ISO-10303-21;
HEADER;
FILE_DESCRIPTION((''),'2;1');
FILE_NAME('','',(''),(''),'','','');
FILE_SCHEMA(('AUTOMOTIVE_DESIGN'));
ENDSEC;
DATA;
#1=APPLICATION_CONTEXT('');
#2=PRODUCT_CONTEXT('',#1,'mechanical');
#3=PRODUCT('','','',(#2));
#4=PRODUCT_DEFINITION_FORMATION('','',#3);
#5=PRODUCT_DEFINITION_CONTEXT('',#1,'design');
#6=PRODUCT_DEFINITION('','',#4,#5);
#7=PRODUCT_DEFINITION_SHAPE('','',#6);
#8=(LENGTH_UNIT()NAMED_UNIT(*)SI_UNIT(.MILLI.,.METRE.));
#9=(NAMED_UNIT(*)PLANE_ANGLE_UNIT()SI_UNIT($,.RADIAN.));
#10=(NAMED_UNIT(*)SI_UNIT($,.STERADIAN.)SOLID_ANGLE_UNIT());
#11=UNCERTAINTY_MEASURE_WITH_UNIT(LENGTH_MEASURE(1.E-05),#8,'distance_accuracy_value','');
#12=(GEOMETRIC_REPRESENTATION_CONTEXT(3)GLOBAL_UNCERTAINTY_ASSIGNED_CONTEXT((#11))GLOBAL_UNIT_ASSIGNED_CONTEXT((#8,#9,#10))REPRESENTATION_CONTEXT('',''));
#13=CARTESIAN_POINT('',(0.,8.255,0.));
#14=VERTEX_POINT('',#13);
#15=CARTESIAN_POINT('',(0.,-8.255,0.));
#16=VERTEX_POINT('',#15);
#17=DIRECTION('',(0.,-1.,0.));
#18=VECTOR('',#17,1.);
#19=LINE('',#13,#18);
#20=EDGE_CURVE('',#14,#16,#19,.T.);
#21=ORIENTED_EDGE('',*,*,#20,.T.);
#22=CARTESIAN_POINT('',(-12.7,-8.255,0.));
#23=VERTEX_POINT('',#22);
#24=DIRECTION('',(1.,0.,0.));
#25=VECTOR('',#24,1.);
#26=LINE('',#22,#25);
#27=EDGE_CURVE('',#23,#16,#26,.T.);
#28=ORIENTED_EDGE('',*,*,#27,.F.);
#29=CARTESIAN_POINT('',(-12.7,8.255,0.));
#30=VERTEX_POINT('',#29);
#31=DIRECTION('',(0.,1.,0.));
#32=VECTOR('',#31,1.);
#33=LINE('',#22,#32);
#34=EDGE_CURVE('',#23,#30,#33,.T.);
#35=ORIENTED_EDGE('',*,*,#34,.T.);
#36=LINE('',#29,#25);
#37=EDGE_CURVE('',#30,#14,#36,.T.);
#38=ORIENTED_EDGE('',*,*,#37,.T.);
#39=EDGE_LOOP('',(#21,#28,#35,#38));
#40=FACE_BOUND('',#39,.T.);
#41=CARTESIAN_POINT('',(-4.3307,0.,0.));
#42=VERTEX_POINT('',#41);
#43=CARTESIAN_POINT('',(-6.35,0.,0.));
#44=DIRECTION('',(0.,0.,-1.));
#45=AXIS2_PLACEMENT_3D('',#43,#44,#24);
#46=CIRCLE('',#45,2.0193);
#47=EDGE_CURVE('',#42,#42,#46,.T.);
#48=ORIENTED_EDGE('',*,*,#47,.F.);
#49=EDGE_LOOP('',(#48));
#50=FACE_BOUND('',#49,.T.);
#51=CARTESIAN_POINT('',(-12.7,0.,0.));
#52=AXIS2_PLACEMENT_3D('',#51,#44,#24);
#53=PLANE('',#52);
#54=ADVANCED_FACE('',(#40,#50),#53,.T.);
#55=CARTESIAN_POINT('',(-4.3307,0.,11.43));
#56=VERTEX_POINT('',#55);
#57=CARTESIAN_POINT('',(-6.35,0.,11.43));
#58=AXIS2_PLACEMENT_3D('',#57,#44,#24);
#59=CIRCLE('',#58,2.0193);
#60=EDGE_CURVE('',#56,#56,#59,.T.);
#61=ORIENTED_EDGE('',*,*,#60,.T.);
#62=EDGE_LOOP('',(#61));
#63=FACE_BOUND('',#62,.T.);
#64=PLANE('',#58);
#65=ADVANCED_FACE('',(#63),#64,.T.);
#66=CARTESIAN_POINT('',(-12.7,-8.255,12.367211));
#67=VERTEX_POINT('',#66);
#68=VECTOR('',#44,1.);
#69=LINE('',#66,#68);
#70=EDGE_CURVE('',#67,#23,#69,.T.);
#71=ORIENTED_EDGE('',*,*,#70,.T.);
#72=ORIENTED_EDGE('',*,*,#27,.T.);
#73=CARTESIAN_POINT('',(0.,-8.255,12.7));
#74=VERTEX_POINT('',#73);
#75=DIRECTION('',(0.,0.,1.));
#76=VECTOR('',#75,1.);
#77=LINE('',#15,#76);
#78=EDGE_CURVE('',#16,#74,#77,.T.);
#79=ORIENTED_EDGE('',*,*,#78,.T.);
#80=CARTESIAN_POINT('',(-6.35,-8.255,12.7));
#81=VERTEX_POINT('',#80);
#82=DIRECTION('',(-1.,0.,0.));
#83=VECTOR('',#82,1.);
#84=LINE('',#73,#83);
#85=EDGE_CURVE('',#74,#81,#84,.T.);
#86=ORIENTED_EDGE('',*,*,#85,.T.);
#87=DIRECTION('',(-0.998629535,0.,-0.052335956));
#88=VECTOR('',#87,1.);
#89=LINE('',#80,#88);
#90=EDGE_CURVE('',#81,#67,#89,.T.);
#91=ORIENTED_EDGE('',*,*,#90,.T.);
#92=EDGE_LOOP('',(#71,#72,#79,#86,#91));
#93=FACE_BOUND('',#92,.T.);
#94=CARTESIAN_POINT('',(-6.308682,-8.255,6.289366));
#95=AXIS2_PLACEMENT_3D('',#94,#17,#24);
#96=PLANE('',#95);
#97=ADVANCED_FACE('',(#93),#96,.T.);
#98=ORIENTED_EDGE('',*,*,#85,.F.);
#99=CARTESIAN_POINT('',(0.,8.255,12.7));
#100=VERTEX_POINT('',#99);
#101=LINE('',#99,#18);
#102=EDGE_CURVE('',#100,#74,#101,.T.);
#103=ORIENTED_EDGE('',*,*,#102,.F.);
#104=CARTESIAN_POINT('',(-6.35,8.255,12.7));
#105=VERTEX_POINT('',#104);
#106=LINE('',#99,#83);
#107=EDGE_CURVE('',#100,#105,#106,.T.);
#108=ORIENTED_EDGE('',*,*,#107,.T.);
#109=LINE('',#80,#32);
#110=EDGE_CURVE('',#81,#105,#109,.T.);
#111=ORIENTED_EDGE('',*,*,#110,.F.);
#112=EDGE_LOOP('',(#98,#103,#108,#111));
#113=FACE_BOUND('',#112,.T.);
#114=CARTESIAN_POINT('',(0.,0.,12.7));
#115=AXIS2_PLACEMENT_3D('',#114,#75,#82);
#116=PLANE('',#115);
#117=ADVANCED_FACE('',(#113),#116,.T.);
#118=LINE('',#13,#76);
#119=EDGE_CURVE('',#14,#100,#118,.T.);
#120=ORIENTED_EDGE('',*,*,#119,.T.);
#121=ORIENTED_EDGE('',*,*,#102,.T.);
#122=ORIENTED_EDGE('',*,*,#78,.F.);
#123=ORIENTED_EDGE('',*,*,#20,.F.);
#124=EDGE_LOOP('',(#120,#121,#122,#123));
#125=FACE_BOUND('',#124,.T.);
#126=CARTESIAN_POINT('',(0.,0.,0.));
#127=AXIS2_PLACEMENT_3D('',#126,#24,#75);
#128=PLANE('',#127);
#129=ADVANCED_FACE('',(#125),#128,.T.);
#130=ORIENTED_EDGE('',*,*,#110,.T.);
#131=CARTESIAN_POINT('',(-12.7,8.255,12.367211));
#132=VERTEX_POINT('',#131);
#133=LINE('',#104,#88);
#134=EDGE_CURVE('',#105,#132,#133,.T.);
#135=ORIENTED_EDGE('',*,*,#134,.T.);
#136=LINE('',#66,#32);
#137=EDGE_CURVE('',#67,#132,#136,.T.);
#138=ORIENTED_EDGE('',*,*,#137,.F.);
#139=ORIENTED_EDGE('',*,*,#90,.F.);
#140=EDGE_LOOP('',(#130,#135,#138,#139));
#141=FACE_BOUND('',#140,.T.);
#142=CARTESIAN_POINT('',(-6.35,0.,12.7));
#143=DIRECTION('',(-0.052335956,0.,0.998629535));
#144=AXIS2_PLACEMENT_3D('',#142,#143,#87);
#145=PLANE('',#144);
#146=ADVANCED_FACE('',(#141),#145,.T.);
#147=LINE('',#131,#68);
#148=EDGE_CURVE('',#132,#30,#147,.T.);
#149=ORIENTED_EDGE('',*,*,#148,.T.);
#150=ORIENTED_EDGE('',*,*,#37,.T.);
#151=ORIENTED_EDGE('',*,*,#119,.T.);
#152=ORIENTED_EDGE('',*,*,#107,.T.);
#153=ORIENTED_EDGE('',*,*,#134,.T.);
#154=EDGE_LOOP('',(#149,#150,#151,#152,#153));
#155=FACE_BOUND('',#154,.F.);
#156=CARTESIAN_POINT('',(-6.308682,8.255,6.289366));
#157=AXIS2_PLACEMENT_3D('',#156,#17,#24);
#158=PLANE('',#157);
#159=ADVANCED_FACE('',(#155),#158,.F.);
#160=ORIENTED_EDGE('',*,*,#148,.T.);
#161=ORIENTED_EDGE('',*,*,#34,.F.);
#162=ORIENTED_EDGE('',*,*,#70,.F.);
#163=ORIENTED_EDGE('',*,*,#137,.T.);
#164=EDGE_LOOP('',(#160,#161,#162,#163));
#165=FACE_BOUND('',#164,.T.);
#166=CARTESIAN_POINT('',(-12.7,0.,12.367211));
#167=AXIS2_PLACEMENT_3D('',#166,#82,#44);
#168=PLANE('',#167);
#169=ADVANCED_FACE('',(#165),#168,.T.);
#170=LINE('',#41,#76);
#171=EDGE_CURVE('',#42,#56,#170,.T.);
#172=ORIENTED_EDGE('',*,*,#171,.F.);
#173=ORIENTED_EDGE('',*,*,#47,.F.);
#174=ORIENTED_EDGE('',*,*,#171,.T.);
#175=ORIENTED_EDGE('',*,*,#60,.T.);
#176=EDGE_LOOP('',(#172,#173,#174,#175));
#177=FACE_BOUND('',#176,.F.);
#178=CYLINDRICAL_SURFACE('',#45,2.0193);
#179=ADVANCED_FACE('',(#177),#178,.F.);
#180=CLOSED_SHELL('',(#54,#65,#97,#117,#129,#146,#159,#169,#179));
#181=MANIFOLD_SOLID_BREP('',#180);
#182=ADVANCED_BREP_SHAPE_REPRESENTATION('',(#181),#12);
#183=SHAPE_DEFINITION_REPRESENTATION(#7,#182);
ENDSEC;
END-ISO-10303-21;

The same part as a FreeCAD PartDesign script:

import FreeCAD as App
import Part
import Sketcher
from FreeCAD import Vector
Q = App.Units.Quantity

doc = App.newDocument("Part")
body = doc.addObject("PartDesign::Body", "Body")

sketch1 = body.newObject("Sketcher::SketchObject", "Sketch")
sketch1.AttachmentSupport = (doc.getObject("XZ_Plane"), [""])
sketch1.MapMode = "FlatFace"
sketch1.addGeometry(Part.LineSegment(Vector(-13, 0, 0), Vector(0, 0, 0)), False)
sketch1.addGeometry(Part.LineSegment(Vector(0, 0, 0), Vector(0, 13, 0)), False)
sketch1.addGeometry(Part.LineSegment(Vector(0, 13, 0), Vector(-6, 13, 0)), False)
sketch1.addGeometry(Part.LineSegment(Vector(-6, 13, 0), Vector(-13, 12, 0)), False)
sketch1.addGeometry(Part.LineSegment(Vector(-13, 12, 0), Vector(-13, 0, 0)), False)
sketch1.addConstraint(Sketcher.Constraint("Coincident", 0, 2, 1, 1))
sketch1.addConstraint(Sketcher.Constraint("Coincident", 1, 2, 2, 1))
sketch1.addConstraint(Sketcher.Constraint("Coincident", 2, 2, 3, 1))
sketch1.addConstraint(Sketcher.Constraint("Coincident", 3, 2, 4, 1))
sketch1.addConstraint(Sketcher.Constraint("Coincident", 4, 2, 0, 1))
sketch1.addConstraint(Sketcher.Constraint("Horizontal", 0))
sketch1.addConstraint(Sketcher.Constraint("Vertical", 1))
sketch1.addConstraint(Sketcher.Constraint("Horizontal", 2))
sketch1.addConstraint(Sketcher.Constraint("Vertical", 4))
sketch1.addConstraint(Sketcher.Constraint("Coincident", 0, 2, -1, 1))
sketch1.addConstraint(Sketcher.Constraint("Equal", 0, 1))
sketch1.addConstraint(Sketcher.Constraint("DistanceX", 0, 1, 0, 2, Q("0.5 in")))
sketch1.addConstraint(Sketcher.Constraint("Angle", 3, Q("-177 deg")))
sketch1.addConstraint(Sketcher.Constraint("DistanceX", 2, 2, 2, 1, Q("0.25 in")))
pad1 = body.newObject("PartDesign::Pad", "Pad")
pad1.Profile = sketch1
pad1.Length = Q("0.65 in")
pad1.Midplane = True

sketch2 = body.newObject("Sketcher::SketchObject", "Sketch001")
sketch2.AttachmentSupport = (doc.getObject("XY_Plane"), [""])
sketch2.MapMode = "FlatFace"
sketch2.addGeometry(Part.Circle(Vector(-6.3, 0, 0), Vector(0, 0, 1), 2), False)
sketch2.addConstraint(Sketcher.Constraint("PointOnObject", 0, 3, -1))
sketch2.addConstraint(Sketcher.Constraint("Diameter", 0, Q("0.159 in")))
sketch2.addConstraint(Sketcher.Constraint("DistanceX", 0, 3, -1, 1, Q("0.25 in")))
pocket1 = body.newObject("PartDesign::Pocket", "Pocket")
pocket1.Profile = sketch2
pocket1.Length = Q("0.45 in")
pocket1.Reversed = True

doc.recompute()
